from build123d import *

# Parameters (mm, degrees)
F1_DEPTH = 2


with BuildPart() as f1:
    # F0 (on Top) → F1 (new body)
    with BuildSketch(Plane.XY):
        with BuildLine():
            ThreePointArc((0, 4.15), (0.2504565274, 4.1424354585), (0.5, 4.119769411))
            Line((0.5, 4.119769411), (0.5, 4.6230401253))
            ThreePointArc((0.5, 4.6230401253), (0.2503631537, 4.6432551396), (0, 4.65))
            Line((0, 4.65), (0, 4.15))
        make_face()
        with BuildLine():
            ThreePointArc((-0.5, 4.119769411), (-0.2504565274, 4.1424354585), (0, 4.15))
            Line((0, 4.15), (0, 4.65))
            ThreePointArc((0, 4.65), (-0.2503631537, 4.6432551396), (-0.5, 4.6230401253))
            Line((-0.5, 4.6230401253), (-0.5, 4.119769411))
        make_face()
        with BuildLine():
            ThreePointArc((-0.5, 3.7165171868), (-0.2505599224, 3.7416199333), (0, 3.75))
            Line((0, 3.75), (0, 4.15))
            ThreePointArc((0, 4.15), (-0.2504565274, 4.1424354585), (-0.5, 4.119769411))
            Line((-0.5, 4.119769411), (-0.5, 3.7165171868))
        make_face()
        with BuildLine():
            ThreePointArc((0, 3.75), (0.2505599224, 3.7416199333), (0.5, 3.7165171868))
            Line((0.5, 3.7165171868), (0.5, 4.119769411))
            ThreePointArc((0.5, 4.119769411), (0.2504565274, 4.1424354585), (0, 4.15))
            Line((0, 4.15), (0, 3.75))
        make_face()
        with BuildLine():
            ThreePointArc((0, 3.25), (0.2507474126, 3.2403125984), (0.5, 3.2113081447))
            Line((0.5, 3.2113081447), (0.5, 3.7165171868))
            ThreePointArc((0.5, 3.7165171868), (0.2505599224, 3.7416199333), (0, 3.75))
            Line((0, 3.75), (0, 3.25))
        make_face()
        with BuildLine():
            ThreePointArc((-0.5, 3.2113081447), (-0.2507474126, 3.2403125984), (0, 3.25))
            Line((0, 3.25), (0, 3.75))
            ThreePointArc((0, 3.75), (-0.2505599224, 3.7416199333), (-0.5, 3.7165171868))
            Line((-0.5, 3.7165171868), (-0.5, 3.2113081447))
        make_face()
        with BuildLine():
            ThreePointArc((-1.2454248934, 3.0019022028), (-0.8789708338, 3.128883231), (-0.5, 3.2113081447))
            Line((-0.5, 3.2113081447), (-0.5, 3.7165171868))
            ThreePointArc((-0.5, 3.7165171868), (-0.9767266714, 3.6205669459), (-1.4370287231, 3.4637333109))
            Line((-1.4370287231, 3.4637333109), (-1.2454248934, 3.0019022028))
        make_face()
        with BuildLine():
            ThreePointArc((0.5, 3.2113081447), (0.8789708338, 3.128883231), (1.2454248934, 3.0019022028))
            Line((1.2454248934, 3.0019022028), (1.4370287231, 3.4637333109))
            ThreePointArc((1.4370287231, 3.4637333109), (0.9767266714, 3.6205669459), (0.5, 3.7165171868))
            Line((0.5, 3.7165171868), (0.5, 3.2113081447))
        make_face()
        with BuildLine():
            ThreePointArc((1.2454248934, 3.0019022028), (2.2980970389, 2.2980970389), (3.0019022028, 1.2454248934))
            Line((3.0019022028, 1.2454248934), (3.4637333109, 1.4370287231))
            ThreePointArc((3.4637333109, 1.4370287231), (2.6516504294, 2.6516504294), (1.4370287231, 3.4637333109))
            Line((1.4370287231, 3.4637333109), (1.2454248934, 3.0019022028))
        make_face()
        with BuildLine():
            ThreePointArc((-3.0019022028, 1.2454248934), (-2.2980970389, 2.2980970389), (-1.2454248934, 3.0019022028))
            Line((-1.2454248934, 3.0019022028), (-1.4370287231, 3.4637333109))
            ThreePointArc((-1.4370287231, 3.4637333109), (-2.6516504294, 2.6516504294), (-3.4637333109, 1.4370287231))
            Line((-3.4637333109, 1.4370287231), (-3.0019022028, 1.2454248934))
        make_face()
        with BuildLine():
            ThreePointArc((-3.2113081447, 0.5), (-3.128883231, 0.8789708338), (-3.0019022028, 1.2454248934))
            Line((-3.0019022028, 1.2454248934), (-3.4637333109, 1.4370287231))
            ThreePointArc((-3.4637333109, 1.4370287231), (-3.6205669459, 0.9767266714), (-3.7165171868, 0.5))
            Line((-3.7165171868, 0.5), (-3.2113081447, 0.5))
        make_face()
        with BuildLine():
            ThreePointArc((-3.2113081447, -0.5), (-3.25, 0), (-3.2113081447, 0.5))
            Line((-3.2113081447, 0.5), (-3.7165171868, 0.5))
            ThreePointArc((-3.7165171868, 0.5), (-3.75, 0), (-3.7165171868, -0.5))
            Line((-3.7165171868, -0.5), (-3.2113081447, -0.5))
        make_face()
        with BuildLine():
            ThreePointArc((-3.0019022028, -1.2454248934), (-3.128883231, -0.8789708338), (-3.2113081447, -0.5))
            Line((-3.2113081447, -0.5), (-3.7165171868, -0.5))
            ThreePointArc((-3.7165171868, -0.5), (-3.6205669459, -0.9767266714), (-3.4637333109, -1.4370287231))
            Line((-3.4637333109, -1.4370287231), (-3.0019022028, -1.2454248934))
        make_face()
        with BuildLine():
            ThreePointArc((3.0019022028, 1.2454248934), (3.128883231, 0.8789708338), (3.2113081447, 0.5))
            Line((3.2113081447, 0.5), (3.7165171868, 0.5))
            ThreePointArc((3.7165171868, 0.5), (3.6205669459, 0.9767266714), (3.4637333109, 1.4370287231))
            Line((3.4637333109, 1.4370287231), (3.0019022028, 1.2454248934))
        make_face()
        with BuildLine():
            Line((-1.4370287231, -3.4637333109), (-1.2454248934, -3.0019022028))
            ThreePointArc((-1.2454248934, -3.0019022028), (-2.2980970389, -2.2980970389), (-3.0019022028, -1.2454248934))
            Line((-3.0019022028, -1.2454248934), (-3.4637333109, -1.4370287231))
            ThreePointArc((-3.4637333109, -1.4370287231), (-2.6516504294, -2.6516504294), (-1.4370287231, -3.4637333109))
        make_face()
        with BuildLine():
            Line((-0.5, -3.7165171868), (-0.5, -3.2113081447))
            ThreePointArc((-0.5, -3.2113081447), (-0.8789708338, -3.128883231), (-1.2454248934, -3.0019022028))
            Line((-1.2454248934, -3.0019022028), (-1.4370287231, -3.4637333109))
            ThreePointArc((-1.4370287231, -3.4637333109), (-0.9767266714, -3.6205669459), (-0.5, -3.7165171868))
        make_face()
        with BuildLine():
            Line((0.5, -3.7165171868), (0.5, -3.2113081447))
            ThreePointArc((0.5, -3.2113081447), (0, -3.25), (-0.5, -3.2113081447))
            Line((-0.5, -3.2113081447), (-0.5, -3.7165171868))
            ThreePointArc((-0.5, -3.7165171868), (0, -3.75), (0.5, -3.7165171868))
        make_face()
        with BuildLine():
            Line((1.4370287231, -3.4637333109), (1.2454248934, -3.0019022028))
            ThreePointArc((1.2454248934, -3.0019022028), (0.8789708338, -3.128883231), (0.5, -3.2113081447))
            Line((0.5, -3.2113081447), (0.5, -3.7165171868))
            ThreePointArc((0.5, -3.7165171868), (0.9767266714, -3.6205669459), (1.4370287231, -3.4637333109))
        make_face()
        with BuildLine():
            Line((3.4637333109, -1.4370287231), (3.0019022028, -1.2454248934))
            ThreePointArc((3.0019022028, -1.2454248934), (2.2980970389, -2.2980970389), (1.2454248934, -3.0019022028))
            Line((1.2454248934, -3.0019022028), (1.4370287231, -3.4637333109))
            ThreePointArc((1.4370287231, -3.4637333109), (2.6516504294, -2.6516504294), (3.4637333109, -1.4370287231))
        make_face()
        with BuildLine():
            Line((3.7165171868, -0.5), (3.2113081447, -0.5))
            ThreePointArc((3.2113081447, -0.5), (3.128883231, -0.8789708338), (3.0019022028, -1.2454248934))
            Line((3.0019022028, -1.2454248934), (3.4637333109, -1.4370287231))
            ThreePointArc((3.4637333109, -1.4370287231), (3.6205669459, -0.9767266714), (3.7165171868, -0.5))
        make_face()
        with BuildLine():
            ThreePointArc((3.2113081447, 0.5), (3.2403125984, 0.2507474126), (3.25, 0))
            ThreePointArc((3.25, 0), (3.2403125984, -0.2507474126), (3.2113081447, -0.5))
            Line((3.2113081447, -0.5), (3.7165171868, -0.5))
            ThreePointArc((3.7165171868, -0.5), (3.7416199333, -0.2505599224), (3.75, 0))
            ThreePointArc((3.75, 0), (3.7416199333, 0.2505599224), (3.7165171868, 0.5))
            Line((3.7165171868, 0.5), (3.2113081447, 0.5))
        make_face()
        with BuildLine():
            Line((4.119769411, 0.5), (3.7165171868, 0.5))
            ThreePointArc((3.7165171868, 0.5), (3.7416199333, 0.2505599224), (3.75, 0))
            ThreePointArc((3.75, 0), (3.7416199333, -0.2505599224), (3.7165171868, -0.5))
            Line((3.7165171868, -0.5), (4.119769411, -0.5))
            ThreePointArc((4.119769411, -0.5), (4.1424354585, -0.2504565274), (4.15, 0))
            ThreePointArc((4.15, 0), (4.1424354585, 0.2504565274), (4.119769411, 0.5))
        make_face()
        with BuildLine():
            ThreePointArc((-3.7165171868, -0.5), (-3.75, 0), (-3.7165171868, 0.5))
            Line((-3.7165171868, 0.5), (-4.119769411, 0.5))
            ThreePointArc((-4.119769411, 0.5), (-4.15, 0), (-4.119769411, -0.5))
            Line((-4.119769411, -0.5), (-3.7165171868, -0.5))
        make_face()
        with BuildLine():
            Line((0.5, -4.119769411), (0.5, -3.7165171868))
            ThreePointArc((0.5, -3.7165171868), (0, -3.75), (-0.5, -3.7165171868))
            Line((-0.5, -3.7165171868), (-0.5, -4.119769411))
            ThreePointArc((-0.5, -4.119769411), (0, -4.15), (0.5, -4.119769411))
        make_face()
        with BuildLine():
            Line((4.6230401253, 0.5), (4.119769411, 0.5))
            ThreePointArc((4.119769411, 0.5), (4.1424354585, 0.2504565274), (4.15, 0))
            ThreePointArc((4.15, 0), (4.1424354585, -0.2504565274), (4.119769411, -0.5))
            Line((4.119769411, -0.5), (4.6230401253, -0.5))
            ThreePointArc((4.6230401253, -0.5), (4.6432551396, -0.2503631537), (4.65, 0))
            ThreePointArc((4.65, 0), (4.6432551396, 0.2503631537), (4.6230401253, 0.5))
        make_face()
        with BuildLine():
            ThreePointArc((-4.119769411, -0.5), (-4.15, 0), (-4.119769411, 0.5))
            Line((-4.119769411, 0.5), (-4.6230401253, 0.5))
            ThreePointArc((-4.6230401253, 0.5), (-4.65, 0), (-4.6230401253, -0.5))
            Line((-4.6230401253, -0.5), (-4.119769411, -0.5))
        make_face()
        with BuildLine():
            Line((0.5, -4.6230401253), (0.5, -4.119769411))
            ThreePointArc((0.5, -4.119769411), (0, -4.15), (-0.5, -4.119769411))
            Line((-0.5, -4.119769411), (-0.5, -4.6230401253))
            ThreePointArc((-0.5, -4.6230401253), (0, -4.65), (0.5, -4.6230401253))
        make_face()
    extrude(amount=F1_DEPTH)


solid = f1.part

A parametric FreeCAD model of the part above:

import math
import FreeCAD as App
import Part
import Sketcher
from FreeCAD import Vector
Q = App.Units.Quantity

doc = App.newDocument("Part")
body = doc.addObject("PartDesign::Body", "Body")

sketch1 = body.newObject("Sketcher::SketchObject", "Sketch")
sketch1.AttachmentSupport = (doc.getObject("XY_Plane"), [""])
sketch1.MapMode = "FlatFace"
sketch1.addGeometry(Part.ArcOfCircle(Part.Circle(Vector(0, 0, 0), Vector(0, 0, 1), 3.75), math.radians(-67.467485), math.radians(-22.532515)), False)
sketch1.addGeometry(Part.ArcOfCircle(Part.Circle(Vector(0, 0, 0), Vector(0, 0, 1), 3.75), math.radians(-22.532515), math.radians(-7.662256)), False)
sketch1.addGeometry(Part.LineSegment(Vector(3.716517, -0.5, 0), Vector(4.62304, -0.5, 0)), False)
sketch1.addGeometry(Part.ArcOfCircle(Part.Circle(Vector(0, 0, 0), Vector(0, 0, 1), 4.65), math.radians(-6.172771), math.radians(0)), False)
sketch1.addGeometry(Part.ArcOfCircle(Part.Circle(Vector(0, 0, 0), Vector(0, 0, 1), 4.65), math.radians(0), math.radians(6.172771)), False)
sketch1.addGeometry(Part.LineSegment(Vector(4.62304, 0.5, 0), Vector(3.716517, 0.5, 0)), False)
sketch1.addGeometry(Part.ArcOfCircle(Part.Circle(Vector(0, 0, 0), Vector(0, 0, 1), 3.75), math.radians(7.662256), math.radians(22.532515)), False)
sketch1.addGeometry(Part.ArcOfCircle(Part.Circle(Vector(0, 0, 0), Vector(0, 0, 1), 3.75), math.radians(22.532515), math.radians(67.467485)), False)
sketch1.addGeometry(Part.ArcOfCircle(Part.Circle(Vector(0, 0, 0), Vector(0, 0, 1), 3.75), math.radians(67.467485), math.radians(82.337744)), False)
sketch1.addGeometry(Part.LineSegment(Vector(0.5, 3.716517, 0), Vector(0.5, 4.62304, 0)), False)
sketch1.addGeometry(Part.ArcOfCircle(Part.Circle(Vector(0, 0, 0), Vector(0, 0, 1), 4.65), math.radians(83.827229), math.radians(90)), False)
sketch1.addGeometry(Part.ArcOfCircle(Part.Circle(Vector(0, 0, 0), Vector(0, 0, 1), 4.65), math.radians(90), math.radians(96.172771)), False)
sketch1.addGeometry(Part.LineSegment(Vector(-0.5, 4.62304, 0), Vector(-0.5, 3.716517, 0)), False)
sketch1.addGeometry(Part.ArcOfCircle(Part.Circle(Vector(0, 0, 0), Vector(0, 0, 1), 3.75), math.radians(97.662256), math.radians(112.532515)), False)
sketch1.addGeometry(Part.ArcOfCircle(Part.Circle(Vector(0, 0, 0), Vector(0, 0, 1), 3.75), math.radians(112.532515), math.radians(157.467485)), False)
sketch1.addGeometry(Part.ArcOfCircle(Part.Circle(Vector(0, 0, 0), Vector(0, 0, 1), 3.75), math.radians(157.467485), math.radians(172.337744)), False)
sketch1.addGeometry(Part.LineSegment(Vector(-3.716517, 0.5, 0), Vector(-4.62304, 0.5, 0)), False)
sketch1.addGeometry(Part.ArcOfCircle(Part.Circle(Vector(0, 0, 0), Vector(0, 0, 1), 4.65), math.radians(173.827229), math.radians(186.172771)), False)
sketch1.addGeometry(Part.LineSegment(Vector(-4.62304, -0.5, 0), Vector(-3.716517, -0.5, 0)), False)
sketch1.addGeometry(Part.ArcOfCircle(Part.Circle(Vector(0, 0, 0), Vector(0, 0, 1), 3.75), math.radians(-172.337744), math.radians(-157.467485)), False)
sketch1.addGeometry(Part.ArcOfCircle(Part.Circle(Vector(0, 0, 0), Vector(0, 0, 1), 3.75), math.radians(-157.467485), math.radians(-112.532515)), False)
sketch1.addGeometry(Part.ArcOfCircle(Part.Circle(Vector(0, 0, 0), Vector(0, 0, 1), 3.75), math.radians(-112.532515), math.radians(-97.662256)), False)
sketch1.addGeometry(Part.LineSegment(Vector(-0.5, -3.716517, 0), Vector(-0.5, -4.62304, 0)), False)
sketch1.addGeometry(Part.ArcOfCircle(Part.Circle(Vector(0, 0, 0), Vector(0, 0, 1), 4.65), math.radians(-96.172771), math.radians(-83.827229)), False)
sketch1.addGeometry(Part.LineSegment(Vector(0.5, -4.62304, 0), Vector(0.5, -3.716517, 0)), False)
sketch1.addGeometry(Part.ArcOfCircle(Part.Circle(Vector(0, 0, 0), Vector(0, 0, 1), 3.75), math.radians(-82.337744), math.radians(-67.467485)), False)
sketch1.addGeometry(Part.ArcOfCircle(Part.Circle(Vector(0, 0, 0), Vector(0, 0, 1), 3.25), math.radians(8.849883), math.radians(22.532515)), False)
sketch1.addGeometry(Part.ArcOfCircle(Part.Circle(Vector(0, 0, 0), Vector(0, 0, 1), 3.25), math.radians(0), math.radians(8.849883)), False)
sketch1.addGeometry(Part.ArcOfCircle(Part.Circle(Vector(0, 0, 0), Vector(0, 0, 1), 3.25), math.radians(-8.849883), math.radians(0)), False)
sketch1.addGeometry(Part.ArcOfCircle(Part.Circle(Vector(0, 0, 0), Vector(0, 0, 1), 3.25), math.radians(-22.532515), math.radians(-8.849883)), False)
sketch1.addGeometry(Part.ArcOfCircle(Part.Circle(Vector(0, 0, 0), Vector(0, 0, 1), 3.25), math.radians(-67.467485), math.radians(-22.532515)), False)
sketch1.addGeometry(Part.ArcOfCircle(Part.Circle(Vector(0, 0, 0), Vector(0, 0, 1), 3.25), math.radians(-81.150117), math.radians(-67.467485)), False)
sketch1.addGeometry(Part.ArcOfCircle(Part.Circle(Vector(0, 0, 0), Vector(0, 0, 1), 3.25), math.radians(-98.849883), math.radians(-81.150117)), False)
sketch1.addGeometry(Part.ArcOfCircle(Part.Circle(Vector(0, 0, 0), Vector(0, 0, 1), 3.25), math.radians(-112.532515), math.radians(-98.849883)), False)
sketch1.addGeometry(Part.ArcOfCircle(Part.Circle(Vector(0, 0, 0), Vector(0, 0, 1), 3.25), math.radians(-157.467485), math.radians(-112.532515)), False)
sketch1.addGeometry(Part.ArcOfCircle(Part.Circle(Vector(0, 0, 0), Vector(0, 0, 1), 3.25), math.radians(-171.150117), math.radians(-157.467485)), False)
sketch1.addGeometry(Part.ArcOfCircle(Part.Circle(Vector(0, 0, 0), Vector(0, 0, 1), 3.25), math.radians(171.150117), math.radians(188.849883)), False)
sketch1.addGeometry(Part.ArcOfCircle(Part.Circle(Vector(0, 0, 0), Vector(0, 0, 1), 3.25), math.radians(157.467485), math.radians(171.150117)), False)
sketch1.addGeometry(Part.ArcOfCircle(Part.Circle(Vector(0, 0, 0), Vector(0, 0, 1), 3.25), math.radians(112.532515), math.radians(157.467485)), False)
sketch1.addGeometry(Part.ArcOfCircle(Part.Circle(Vector(0, 0, 0), Vector(0, 0, 1), 3.25), math.radians(98.849883), math.radians(112.532515)), False)
sketch1.addGeometry(Part.ArcOfCircle(Part.Circle(Vector(0, 0, 0), Vector(0, 0, 1), 3.25), math.radians(90), math.radians(98.849883)), False)
sketch1.addGeometry(Part.ArcOfCircle(Part.Circle(Vector(0, 0, 0), Vector(0, 0, 1), 3.25), math.radians(81.150117), math.radians(90)), False)
sketch1.addGeometry(Part.ArcOfCircle(Part.Circle(Vector(0, 0, 0), Vector(0, 0, 1), 3.25), math.radians(67.467485), math.radians(81.150117)), False)
sketch1.addGeometry(Part.ArcOfCircle(Part.Circle(Vector(0, 0, 0), Vector(0, 0, 1), 3.25), math.radians(22.532515), math.radians(67.467485)), False)
sketch1.addConstraint(Sketcher.Constraint("Tangent", 0, 2, 1, 1))
sketch1.addConstraint(Sketcher.Constraint("Coincident", 1, 2, 2, 1))
sketch1.addConstraint(Sketcher.Constraint("Coincident", 2, 2, 3, 1))
sketch1.addConstraint(Sketcher.Constraint("Tangent", 3, 2, 4, 1))
sketch1.addConstraint(Sketcher.Constraint("Coincident", 4, 2, 5, 1))
sketch1.addConstraint(Sketcher.Constraint("Coincident", 5, 2, 6, 1))
sketch1.addConstraint(Sketcher.Constraint("Tangent", 6, 2, 7, 1))
sketch1.addConstraint(Sketcher.Constraint("Tangent", 7, 2, 8, 1))
sketch1.addConstraint(Sketcher.Constraint("Coincident", 8, 2, 9, 1))
sketch1.addConstraint(Sketcher.Constraint("Coincident", 9, 2, 10, 1))
sketch1.addConstraint(Sketcher.Constraint("Tangent", 10, 2, 11, 1))
sketch1.addConstraint(Sketcher.Constraint("Coincident", 11, 2, 12, 1))
sketch1.addConstraint(Sketcher.Constraint("Coincident", 12, 2, 13, 1))
sketch1.addConstraint(Sketcher.Constraint("Tangent", 13, 2, 14, 1))
sketch1.addConstraint(Sketcher.Constraint("Tangent", 14, 2, 15, 1))
sketch1.addConstraint(Sketcher.Constraint("Coincident", 15, 2, 16, 1))
sketch1.addConstraint(Sketcher.Constraint("Coincident", 16, 2, 17, 1))
sketch1.addConstraint(Sketcher.Constraint("Coincident", 17, 2, 18, 1))
sketch1.addConstraint(Sketcher.Constraint("Coincident", 18, 2, 19, 1))
sketch1.addConstraint(Sketcher.Constraint("Tangent", 19, 2, 20, 1))
sketch1.addConstraint(Sketcher.Constraint("Tangent", 20, 2, 21, 1))
sketch1.addConstraint(Sketcher.Constraint("Coincident", 21, 2, 22, 1))
sketch1.addConstraint(Sketcher.Constraint("Coincident", 22, 2, 23, 1))
sketch1.addConstraint(Sketcher.Constraint("Coincident", 23, 2, 24, 1))
sketch1.addConstraint(Sketcher.Constraint("Coincident", 24, 2, 25, 1))
sketch1.addConstraint(Sketcher.Constraint("Tangent", 25, 2, 0, 1))
sketch1.addConstraint(Sketcher.Constraint("Tangent", 26, 1, 27, 2))
sketch1.addConstraint(Sketcher.Constraint("Tangent", 27, 1, 28, 2))
sketch1.addConstraint(Sketcher.Constraint("Tangent", 28, 1, 29, 2))
sketch1.addConstraint(Sketcher.Constraint("Tangent", 29, 1, 30, 2))
sketch1.addConstraint(Sketcher.Constraint("Tangent", 30, 1, 31, 2))
sketch1.addConstraint(Sketcher.Constraint("Tangent", 31, 1, 32, 2))
sketch1.addConstraint(Sketcher.Constraint("Tangent", 32, 1, 33, 2))
sketch1.addConstraint(Sketcher.Constraint("Tangent", 33, 1, 34, 2))
sketch1.addConstraint(Sketcher.Constraint("Tangent", 34, 1, 35, 2))
sketch1.addConstraint(Sketcher.Constraint("Tangent", 35, 1, 36, 2))
sketch1.addConstraint(Sketcher.Constraint("Tangent", 36, 1, 37, 2))
sketch1.addConstraint(Sketcher.Constraint("Tangent", 37, 1, 38, 2))
sketch1.addConstraint(Sketcher.Constraint("Tangent", 38, 1, 39, 2))
sketch1.addConstraint(Sketcher.Constraint("Tangent", 39, 1, 40, 2))
sketch1.addConstraint(Sketcher.Constraint("Tangent", 40, 1, 41, 2))
sketch1.addConstraint(Sketcher.Constraint("Tangent", 41, 1, 42, 2))
sketch1.addConstraint(Sketcher.Constraint("Tangent", 42, 1, 43, 2))
sketch1.addConstraint(Sketcher.Constraint("Tangent", 43, 1, 26, 2))
sketch1.addConstraint(Sketcher.Constraint("Horizontal", 2))
sketch1.addConstraint(Sketcher.Constraint("Horizontal", 5))
sketch1.addConstraint(Sketcher.Constraint("Vertical", 9))
sketch1.addConstraint(Sketcher.Constraint("Vertical", 12))
sketch1.addConstraint(Sketcher.Constraint("Horizontal", 16))
sketch1.addConstraint(Sketcher.Constraint("Horizontal", 18))
sketch1.addConstraint(Sketcher.Constraint("Vertical", 22))
sketch1.addConstraint(Sketcher.Constraint("Vertical", 24))
sketch1.addConstraint(Sketcher.Constraint("Coincident", 0, 3, -1, 1))
sketch1.addConstraint(Sketcher.Constraint("Coincident", 3, 3, -1, 1))
sketch1.addConstraint(Sketcher.Constraint("Coincident", 6, 3, -1, 1))
sketch1.addConstraint(Sketcher.Constraint("Coincident", 8, 3, -1, 1))
sketch1.addConstraint(Sketcher.Constraint("Coincident", 10, 3, -1, 1))
sketch1.addConstraint(Sketcher.Constraint("Coincident", 13, 3, -1, 1))
sketch1.addConstraint(Sketcher.Constraint("Coincident", 15, 3, -1, 1))
sketch1.addConstraint(Sketcher.Constraint("Coincident", 17, 3, -1, 1))
sketch1.addConstraint(Sketcher.Constraint("Coincident", 19, 3, -1, 1))
sketch1.addConstraint(Sketcher.Constraint("Coincident", 21, 3, -1, 1))
sketch1.addConstraint(Sketcher.Constraint("Coincident", 23, 3, -1, 1))
sketch1.addConstraint(Sketcher.Constraint("Coincident", 26, 3, -1, 1))
sketch1.addConstraint(Sketcher.Constraint("Coincident", 28, 3, -1, 1))
sketch1.addConstraint(Sketcher.Constraint("Coincident", 30, 3, -1, 1))
sketch1.addConstraint(Sketcher.Constraint("Coincident", 32, 3, -1, 1))
sketch1.addConstraint(Sketcher.Constraint("Coincident", 34, 3, -1, 1))
sketch1.addConstraint(Sketcher.Constraint("Coincident", 36, 3, -1, 1))
sketch1.addConstraint(Sketcher.Constraint("Coincident", 38, 3, -1, 1))
sketch1.addConstraint(Sketcher.Constraint("Coincident", 40, 3, -1, 1))
sketch1.addConstraint(Sketcher.Constraint("Equal", 0, 1))
sketch1.addConstraint(Sketcher.Constraint("Equal", 3, 4))
sketch1.addConstraint(Sketcher.Constraint("Equal", 1, 6))
sketch1.addConstraint(Sketcher.Constraint("Equal", 4, 10))
sketch1.addConstraint(Sketcher.Constraint("Equal", 10, 11))
sketch1.addConstraint(Sketcher.Constraint("Equal", 8, 13))
sketch1.addConstraint(Sketcher.Constraint("Equal", 11, 17))
sketch1.addConstraint(Sketcher.Constraint("Equal", 15, 19))
sketch1.addConstraint(Sketcher.Constraint("Equal", 17, 23))
sketch1.addConstraint(Sketcher.Constraint("Equal", 21, 25))
sketch1.addConstraint(Sketcher.Constraint("Equal", 40, 41))
sketch1.addConstraint(Sketcher.Constraint("PointOnObject", 3, 2, -1))
sketch1.addConstraint(Sketcher.Constraint("PointOnObject", 10, 2, -2))
sketch1.addConstraint(Sketcher.Constraint("PointOnObject", 27, 1, -1))
sketch1.addConstraint(Sketcher.Constraint("PointOnObject", 40, 1, -2))
sketch1.addConstraint(Sketcher.Constraint("Horizontal", 9, 2, 11, 2))
sketch1.addConstraint(Sketcher.Constraint("Horizontal", 7, 2, 13, 2))
sketch1.addConstraint(Sketcher.Constraint("Horizontal", 6, 2, 14, 2))
sketch1.addConstraint(Sketcher.Constraint("Horizontal", 5, 2, 15, 2))
sketch1.addConstraint(Sketcher.Constraint("Horizontal", 2, 2, 17, 2))
sketch1.addConstraint(Sketcher.Constraint("Horizontal", 0, 2, 19, 2))
sketch1.addConstraint(Sketcher.Constraint("Horizontal", 22, 2, 23, 2))
sketch1.addConstraint(Sketcher.Constraint("Horizontal", 20, 2, 25, 2))
sketch1.addConstraint(Sketcher.Constraint("Horizontal", 16, 2, 26, 1))
sketch1.addConstraint(Sketcher.Constraint("Horizontal", 18, 2, 28, 1))
sketch1.addConstraint(Sketcher.Constraint("Horizontal", 31, 1, 32, 1))
sketch1.addConstraint(Sketcher.Constraint("Horizontal", 30, 1, 33, 1))
sketch1.addConstraint(Sketcher.Constraint("Horizontal", 29, 1, 34, 1))
sketch1.addConstraint(Sketcher.Constraint("Horizontal", 28, 1, 35, 1))
sketch1.addConstraint(Sketcher.Constraint("Horizontal", 26, 1, 36, 1))
sketch1.addConstraint(Sketcher.Constraint("Horizontal", 39, 1, 41, 1))
sketch1.addConstraint(Sketcher.Constraint("Horizontal", 38, 1, 42, 1))
sketch1.addConstraint(Sketcher.Constraint("Horizontal", 37, 1, 43, 1))
sketch1.addConstraint(Sketcher.Constraint("Vertical", 2, 2, 4, 2))
sketch1.addConstraint(Sketcher.Constraint("Vertical", 0, 2, 6, 2))
sketch1.addConstraint(Sketcher.Constraint("Vertical", 13, 2, 20, 2))
sketch1.addConstraint(Sketcher.Constraint("Vertical", 12, 2, 21, 2))
sketch1.addConstraint(Sketcher.Constraint("Vertical", 24, 2, 31, 1))
sketch1.addConstraint(Sketcher.Constraint("Vertical", 34, 1, 37, 1))
sketch1.addConstraint(Sketcher.Constraint("Vertical", 33, 1, 38, 1))
sketch1.addConstraint(Sketcher.Constraint("Vertical", 32, 1, 39, 1))
sketch1.addConstraint(Sketcher.Constraint("Equal", 18, 9))
sketch1.addConstraint(Sketcher.Constraint("Radius", 0, Q("3.75 mm")))
sketch1.addConstraint(Sketcher.Constraint("Radius", 3, Q("4.65 mm")))
sketch1.addConstraint(Sketcher.Constraint("Radius", 26, Q("3.25 mm")))
sketch1.addConstraint(Sketcher.Constraint("DistanceY", 1, 2, -1, 1, Q("0.5 mm")))
sketch1.addConstraint(Sketcher.Constraint("DistanceY", 0, 2, -1, 1, Q("1.437029 mm")))
sketch1.addConstraint(Sketcher.Constraint("DistanceX", -1, 1, 7, 2, Q("1.437029 mm")))
sketch1.addConstraint(Sketcher.Constraint("DistanceX", -1, 1, 29, 1, Q("3.001902 mm")))
sketch1.addConstraint(Sketcher.Constraint("DistanceX", -1, 1, 30, 1, Q("1.245425 mm")))
pad1 = body.newObject("PartDesign::Pad", "Pad")
pad1.Profile = sketch1
pad1.Length = 2

doc.recompute()
